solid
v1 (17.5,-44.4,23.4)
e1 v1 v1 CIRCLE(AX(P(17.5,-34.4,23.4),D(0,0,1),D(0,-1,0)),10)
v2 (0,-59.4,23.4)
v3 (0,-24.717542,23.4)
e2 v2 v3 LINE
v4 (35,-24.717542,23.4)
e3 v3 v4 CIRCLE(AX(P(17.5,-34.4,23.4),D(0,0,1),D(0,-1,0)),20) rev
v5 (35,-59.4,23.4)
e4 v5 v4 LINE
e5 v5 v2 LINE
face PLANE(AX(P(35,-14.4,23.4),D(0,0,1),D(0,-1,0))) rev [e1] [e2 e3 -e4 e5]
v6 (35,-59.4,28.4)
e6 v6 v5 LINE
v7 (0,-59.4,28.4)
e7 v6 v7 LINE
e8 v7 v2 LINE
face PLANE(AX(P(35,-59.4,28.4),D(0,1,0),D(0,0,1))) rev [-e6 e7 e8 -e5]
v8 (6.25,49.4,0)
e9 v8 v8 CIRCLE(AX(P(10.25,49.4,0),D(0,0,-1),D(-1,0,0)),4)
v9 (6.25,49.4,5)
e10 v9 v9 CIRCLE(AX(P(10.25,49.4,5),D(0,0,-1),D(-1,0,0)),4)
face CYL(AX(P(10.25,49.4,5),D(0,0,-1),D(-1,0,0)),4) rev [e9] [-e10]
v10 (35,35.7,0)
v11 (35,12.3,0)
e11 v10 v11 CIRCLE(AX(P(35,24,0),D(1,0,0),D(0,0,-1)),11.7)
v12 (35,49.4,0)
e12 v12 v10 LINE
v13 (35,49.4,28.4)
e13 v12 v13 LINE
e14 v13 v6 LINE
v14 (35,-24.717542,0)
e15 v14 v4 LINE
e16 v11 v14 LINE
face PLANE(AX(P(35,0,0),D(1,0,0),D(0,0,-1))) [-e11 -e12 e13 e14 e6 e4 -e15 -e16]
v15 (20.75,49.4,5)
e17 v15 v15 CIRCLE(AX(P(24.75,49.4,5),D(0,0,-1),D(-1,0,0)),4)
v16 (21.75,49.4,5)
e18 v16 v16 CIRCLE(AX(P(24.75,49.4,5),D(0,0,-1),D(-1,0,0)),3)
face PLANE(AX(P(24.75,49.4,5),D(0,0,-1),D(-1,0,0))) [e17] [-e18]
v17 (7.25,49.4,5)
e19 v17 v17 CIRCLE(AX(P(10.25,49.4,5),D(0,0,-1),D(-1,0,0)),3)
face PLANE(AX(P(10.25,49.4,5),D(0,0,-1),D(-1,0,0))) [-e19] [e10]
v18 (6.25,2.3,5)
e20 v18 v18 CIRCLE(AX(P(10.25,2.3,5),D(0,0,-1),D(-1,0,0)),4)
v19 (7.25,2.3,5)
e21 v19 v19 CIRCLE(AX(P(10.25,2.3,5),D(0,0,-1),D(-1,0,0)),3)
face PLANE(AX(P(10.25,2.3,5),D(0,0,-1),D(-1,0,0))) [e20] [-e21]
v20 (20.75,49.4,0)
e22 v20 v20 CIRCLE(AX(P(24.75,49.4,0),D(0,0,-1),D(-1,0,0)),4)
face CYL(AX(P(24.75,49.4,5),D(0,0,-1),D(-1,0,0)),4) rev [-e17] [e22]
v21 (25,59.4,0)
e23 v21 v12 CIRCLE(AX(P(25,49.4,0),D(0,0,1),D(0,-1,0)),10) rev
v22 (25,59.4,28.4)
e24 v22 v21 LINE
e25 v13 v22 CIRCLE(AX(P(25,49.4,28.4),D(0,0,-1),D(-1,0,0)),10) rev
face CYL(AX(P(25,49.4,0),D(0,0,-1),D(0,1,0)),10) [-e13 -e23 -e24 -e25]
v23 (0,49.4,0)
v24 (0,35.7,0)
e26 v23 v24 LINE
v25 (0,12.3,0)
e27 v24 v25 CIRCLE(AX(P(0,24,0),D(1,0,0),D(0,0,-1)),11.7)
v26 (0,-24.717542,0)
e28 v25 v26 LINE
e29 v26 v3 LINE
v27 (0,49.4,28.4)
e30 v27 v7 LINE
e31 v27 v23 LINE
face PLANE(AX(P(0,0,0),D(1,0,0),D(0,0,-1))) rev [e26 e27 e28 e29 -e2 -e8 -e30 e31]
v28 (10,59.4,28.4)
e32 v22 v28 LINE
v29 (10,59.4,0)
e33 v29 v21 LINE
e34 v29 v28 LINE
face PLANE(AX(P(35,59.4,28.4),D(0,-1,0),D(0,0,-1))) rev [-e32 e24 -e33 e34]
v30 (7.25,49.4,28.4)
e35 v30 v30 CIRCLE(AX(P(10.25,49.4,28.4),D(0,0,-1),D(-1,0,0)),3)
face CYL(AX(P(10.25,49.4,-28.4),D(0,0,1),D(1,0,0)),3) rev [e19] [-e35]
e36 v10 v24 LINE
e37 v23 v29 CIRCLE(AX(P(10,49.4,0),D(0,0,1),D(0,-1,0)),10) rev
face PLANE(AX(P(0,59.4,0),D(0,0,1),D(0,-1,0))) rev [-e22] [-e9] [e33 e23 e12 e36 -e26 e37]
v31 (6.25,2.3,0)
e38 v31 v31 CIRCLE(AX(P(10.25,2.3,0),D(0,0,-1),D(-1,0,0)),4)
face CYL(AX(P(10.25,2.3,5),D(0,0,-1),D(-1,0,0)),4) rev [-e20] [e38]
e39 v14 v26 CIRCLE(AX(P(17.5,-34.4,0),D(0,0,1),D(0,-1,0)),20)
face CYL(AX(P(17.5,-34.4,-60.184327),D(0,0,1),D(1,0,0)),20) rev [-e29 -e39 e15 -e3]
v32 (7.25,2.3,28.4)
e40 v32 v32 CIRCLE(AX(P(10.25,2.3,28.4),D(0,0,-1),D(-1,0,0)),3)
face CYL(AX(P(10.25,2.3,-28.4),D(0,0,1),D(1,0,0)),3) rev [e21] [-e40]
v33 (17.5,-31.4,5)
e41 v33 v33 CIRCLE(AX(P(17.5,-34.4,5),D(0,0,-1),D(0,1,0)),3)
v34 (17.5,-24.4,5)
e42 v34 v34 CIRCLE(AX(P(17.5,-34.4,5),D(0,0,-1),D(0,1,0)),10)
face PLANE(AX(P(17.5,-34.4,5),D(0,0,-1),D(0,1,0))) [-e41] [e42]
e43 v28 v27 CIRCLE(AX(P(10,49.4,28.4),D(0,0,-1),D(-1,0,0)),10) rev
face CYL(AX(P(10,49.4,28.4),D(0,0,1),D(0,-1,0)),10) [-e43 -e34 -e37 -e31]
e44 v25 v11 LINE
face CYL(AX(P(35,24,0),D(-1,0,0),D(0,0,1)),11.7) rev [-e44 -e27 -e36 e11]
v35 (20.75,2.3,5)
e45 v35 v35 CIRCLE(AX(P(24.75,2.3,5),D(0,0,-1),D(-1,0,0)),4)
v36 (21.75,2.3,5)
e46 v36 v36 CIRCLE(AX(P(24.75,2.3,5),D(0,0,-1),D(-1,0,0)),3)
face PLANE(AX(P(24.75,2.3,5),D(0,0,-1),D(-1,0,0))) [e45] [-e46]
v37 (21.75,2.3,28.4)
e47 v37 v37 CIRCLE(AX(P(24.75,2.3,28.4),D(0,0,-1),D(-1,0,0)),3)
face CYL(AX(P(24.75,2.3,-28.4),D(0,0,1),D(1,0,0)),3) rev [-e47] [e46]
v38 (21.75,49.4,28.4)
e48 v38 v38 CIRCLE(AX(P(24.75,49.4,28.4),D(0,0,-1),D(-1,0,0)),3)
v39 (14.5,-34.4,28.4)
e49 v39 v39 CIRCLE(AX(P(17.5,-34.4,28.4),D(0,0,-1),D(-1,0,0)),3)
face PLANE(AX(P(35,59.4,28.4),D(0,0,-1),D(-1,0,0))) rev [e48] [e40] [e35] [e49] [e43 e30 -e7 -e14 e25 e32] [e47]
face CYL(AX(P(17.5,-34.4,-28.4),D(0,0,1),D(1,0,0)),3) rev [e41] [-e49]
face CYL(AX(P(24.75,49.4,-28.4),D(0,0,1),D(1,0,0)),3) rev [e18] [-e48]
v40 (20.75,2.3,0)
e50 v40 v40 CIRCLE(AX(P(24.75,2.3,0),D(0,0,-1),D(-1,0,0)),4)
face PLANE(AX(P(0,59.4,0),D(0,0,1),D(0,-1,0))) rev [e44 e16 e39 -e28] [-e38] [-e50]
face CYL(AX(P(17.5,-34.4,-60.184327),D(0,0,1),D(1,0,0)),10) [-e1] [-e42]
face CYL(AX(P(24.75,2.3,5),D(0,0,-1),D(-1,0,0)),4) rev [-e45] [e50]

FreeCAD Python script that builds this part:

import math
import FreeCAD as App
import Part
import Sketcher
from FreeCAD import Vector
Q = App.Units.Quantity


def edges_at(feature, points):
    """Names of the edges that pass closest to the given points."""
    edges = feature.Shape.Edges
    near = lambda p: min(range(len(edges)), key=lambda i: edges[i].distToShape(Part.Vertex(*p))[0])
    return sorted({f"Edge{near(p) + 1}" for p in points})


def add_polygon(sketch, points):
    """Adds a closed chain of lines whose ends are joined by coincident constraints."""
    first, n = sketch.GeometryCount, len(points)
    for a, b in zip(points, points[1:] + points[:1]):
        sketch.addGeometry(Part.LineSegment(App.Vector(*a, 0), App.Vector(*b, 0)), False)
    for i in range(n):
        sketch.addConstraint(Sketcher.Constraint("Coincident", first + i, 2, first + (i + 1) % n, 1))

doc = App.newDocument("Part")
body = doc.addObject("PartDesign::Body", "Body")

# Sketch on YZ plane
sketch1 = body.newObject("Sketcher::SketchObject", "Sketch")
sketch1.AttachmentSupport = (doc.getObject("YZ_Plane"), [""])
sketch1.MapMode = "FlatFace"
add_polygon(sketch1, [(-59, 28), (-59, 23), (-14, 23), (-14, -23), (-59, -23), (-59, -28), (59, -28), (59, 28)])  # lines 0-7
sketch1.addGeometry(Part.Circle(Vector(24, 0, 0), Vector(0, 0, 1), 12), False)  # 8
sketch1.addConstraint(Sketcher.Constraint("Vertical", 0))
sketch1.addConstraint(Sketcher.Constraint("Horizontal", 1))
sketch1.addConstraint(Sketcher.Constraint("Vertical", 2))
sketch1.addConstraint(Sketcher.Constraint("Horizontal", 3))
sketch1.addConstraint(Sketcher.Constraint("Vertical", 4))
sketch1.addConstraint(Sketcher.Constraint("Horizontal", 5))
sketch1.addConstraint(Sketcher.Constraint("Vertical", 6))
sketch1.addConstraint(Sketcher.Constraint("Horizontal", 7))
sketch1.addConstraint(Sketcher.Constraint("Symmetric", 4, 2, 6, 2, -1, 1))
sketch1.addConstraint(Sketcher.Constraint("Symmetric", 0, 2, 3, 2, -1))
sketch1.addConstraint(Sketcher.Constraint("PointOnObject", 8, 3, -1))
sketch1.addConstraint(Sketcher.Constraint("Diameter", 8, Q("23.4 mm")))
sketch1.addConstraint(Sketcher.Constraint("DistanceX", 1, 1, 1, 2, Q("45 mm")))
sketch1.addConstraint(Sketcher.Constraint("DistanceY", 0, 2, 0, 1, Q("5 mm")))
sketch1.addConstraint(Sketcher.Constraint("DistanceX", 5, 1, 5, 2, Q("118.8 mm")))
sketch1.addConstraint(Sketcher.Constraint("DistanceY", 2, 2, 2, 1, Q("46.8 mm")))
sketch1.addConstraint(Sketcher.Constraint("DistanceX", -1, 1, 8, 3, Q("24 mm")))
pad1 = body.newObject("PartDesign::Pad", "Pad")
pad1.Profile = sketch1
pad1.Length = 35

# Sketch on XY plane
sketch2 = body.newObject("Sketcher::SketchObject", "Sketch001")
sketch2.AttachmentSupport = (doc.getObject("XY_Plane"), [""])
sketch2.MapMode = "FlatFace"
sketch2.AttachmentOffset = App.Placement(Vector(0, 0, 28.4), App.Rotation())
sketch2.addGeometry(Part.Circle(Vector(18, -34, 0), Vector(0, 0, 1), 10), False)
sketch2.addGeometry(Part.LineSegment(Vector(0, -13, 0), Vector(0, -25, 0)), False)
sketch2.addGeometry(Part.ArcOfCircle(Part.Circle(Vector(18, -34, 0), Vector(0, 0, 1), 20), math.radians(29), math.radians(151)), False)
sketch2.addGeometry(Part.LineSegment(Vector(35, -25, 0), Vector(35, -13, 0)), False)
sketch2.addGeometry(Part.LineSegment(Vector(35, -13, 0), Vector(0, -13, 0)), False)
sketch2.addConstraint(Sketcher.Constraint("Coincident", 1, 2, 2, 2))
sketch2.addConstraint(Sketcher.Constraint("Coincident", 2, 1, 3, 1))
sketch2.addConstraint(Sketcher.Constraint("Coincident", 3, 2, 4, 1))
sketch2.addConstraint(Sketcher.Constraint("Coincident", 4, 2, 1, 1))
sketch2.addConstraint(Sketcher.Constraint("Vertical", 1))
sketch2.addConstraint(Sketcher.Constraint("Vertical", 3))
sketch2.addConstraint(Sketcher.Constraint("Horizontal", 4))
sketch2.addConstraint(Sketcher.Constraint("Coincident", 2, 3, 0, 3))
sketch2.addConstraint(Sketcher.Constraint("PointOnObject", 1, 2, -2))
sketch2.addConstraint(Sketcher.Constraint("Horizontal", 1, 2, 2, 1))
sketch2.addConstraint(Sketcher.Constraint("Diameter", 0, Q("20 mm")))
sketch2.addConstraint(Sketcher.Constraint("Radius", 2, Q("20 mm")))
sketch2.addConstraint(Sketcher.Constraint("DistanceX", 4, 2, 4, 1, Q("35 mm")))
sketch2.addConstraint(Sketcher.Constraint("DistanceY", 0, 3, 3, 2, Q("21 mm")))
sketch2.addConstraint(Sketcher.Constraint("DistanceY", 0, 3, -1, 1, Q("34.4 mm")))
pad2 = body.newObject("PartDesign::Pad", "Pad001")
pad2.Profile = sketch2
pad2.Length = 51.8
pad2.Reversed = True

# Sketch on XY plane
sketch3 = body.newObject("Sketcher::SketchObject", "Sketch002")
sketch3.AttachmentSupport = (doc.getObject("XY_Plane"), [""])
sketch3.MapMode = "FlatFace"
sketch3.AttachmentOffset = App.Placement(Vector(0, 0, 28.4), App.Rotation())
sketch3.addGeometry(Part.Circle(Vector(10.2, 49.4, 0), Vector(0, 0, 1), 3), False)
sketch3.addGeometry(Part.Circle(Vector(17.5, -34.4, 0), Vector(0, 0, 1), 3), False)
sketch3.addGeometry(Part.Circle(Vector(10.2, 2.3, 0), Vector(0, 0, 1), 3), False)
sketch3.addGeometry(Part.Circle(Vector(24.8, 2.3, 0), Vector(0, 0, 1), 3), False)
sketch3.addGeometry(Part.Circle(Vector(24.8, 49.4, 0), Vector(0, 0, 1), 3), False)
sketch3.addConstraint(Sketcher.Constraint("Equal", 0, 1))
sketch3.addConstraint(Sketcher.Constraint("Equal", 1, 2))
sketch3.addConstraint(Sketcher.Constraint("Equal", 2, 3))
sketch3.addConstraint(Sketcher.Constraint("Equal", 3, 4))
sketch3.addConstraint(Sketcher.Constraint("Horizontal", 2, 3, 3, 3))
sketch3.addConstraint(Sketcher.Constraint("Horizontal", 0, 3, 4, 3))
sketch3.addConstraint(Sketcher.Constraint("Vertical", 0, 3, 2, 3))
sketch3.addConstraint(Sketcher.Constraint("Vertical", 3, 3, 4, 3))
sketch3.addConstraint(Sketcher.Constraint("Diameter", 0, Q("6 mm")))
sketch3.addConstraint(Sketcher.Constraint("DistanceY", -1, 1, 0, 3, Q("49.4 mm")))
sketch3.addConstraint(Sketcher.Constraint("DistanceX", -1, 1, 1, 3, Q("17.5 mm")))
sketch3.addConstraint(Sketcher.Constraint("DistanceY", 1, 3, -1, 1, Q("34.4 mm")))
sketch3.addConstraint(Sketcher.Constraint("DistanceY", -1, 1, 2, 3, Q("2.3 mm")))
sketch3.addConstraint(Sketcher.Constraint("DistanceX", 2, 3, 3, 3, Q("14.5 mm")))
sketch3.addConstraint(Sketcher.Constraint("DistanceX", -1, 1, 0, 3, Q("10.25 mm")))
pocket1 = body.newObject("PartDesign::Pocket", "Pocket")
pocket1.Profile = sketch3
pocket1.Type = "ThroughAll"
pocket1.Midplane = True

# Sketch on YZ plane
sketch4 = body.newObject("Sketcher::SketchObject", "Sketch003")
sketch4.AttachmentSupport = (doc.getObject("YZ_Plane"), [""])
sketch4.MapMode = "FlatFace"
sketch4.AttachmentOffset = App.Placement(Vector(0, 0, 35), App.Rotation())
add_polygon(sketch4, [(59, 0), (-59, 0), (-59, -28), (59, -28)])  # lines 0-3
sketch4.addConstraint(Sketcher.Constraint("Horizontal", 0))
sketch4.addConstraint(Sketcher.Constraint("Vertical", 1))
sketch4.addConstraint(Sketcher.Constraint("Horizontal", 2))
sketch4.addConstraint(Sketcher.Constraint("Vertical", 3))
sketch4.addConstraint(Sketcher.Constraint("Symmetric", 0, 2, 3, 2, -1, 1))
sketch4.addConstraint(Sketcher.Constraint("DistanceX", 0, 2, 0, 1, Q("118.8 mm")))
sketch4.addConstraint(Sketcher.Constraint("DistanceY", 1, 2, 1, 1, Q("28.4 mm")))
pocket2 = body.newObject("PartDesign::Pocket", "Pocket001")
pocket2.Profile = sketch4
pocket2.Type = "ThroughAll"

# Sketch on XY plane
sketch5 = body.newObject("Sketcher::SketchObject", "Sketch004")
sketch5.AttachmentSupport = (doc.getObject("XY_Plane"), [""])
sketch5.MapMode = "FlatFace"
sketch5.addGeometry(Part.Circle(Vector(17.5, -34.4, 0), Vector(0, 0, 1), 10), False)
sketch5.addGeometry(Part.Circle(Vector(17.5, -34.4, 0), Vector(0, 0, 1), 3), False)
sketch5.addConstraint(Sketcher.Constraint("Coincident", 1, 3, 0, 3))
sketch5.addConstraint(Sketcher.Constraint("Diameter", 0, Q("20 mm")))
sketch5.addConstraint(Sketcher.Constraint("Diameter", 1, Q("6 mm")))
sketch5.addConstraint(Sketcher.Constraint("DistanceX", -1, 1, 0, 3, Q("17.5 mm")))
sketch5.addConstraint(Sketcher.Constraint("DistanceY", 0, 3, -1, 1, Q("34.4 mm")))
pocket3 = body.newObject("PartDesign::Pocket", "Pocket002")
pocket3.Profile = sketch5
pocket3.Length = 5
pocket3.Reversed = True

# Sketch on XY plane
sketch6 = body.newObject("Sketcher::SketchObject", "Sketch005")
sketch6.AttachmentSupport = (doc.getObject("XY_Plane"), [""])
sketch6.MapMode = "FlatFace"
sketch6.addGeometry(Part.Circle(Vector(24.8, 49.4, 0), Vector(0, 0, 1), 4), False)
sketch6.addGeometry(Part.Circle(Vector(24.8, 49.4, 0), Vector(0, 0, 1), 3), False)
sketch6.addGeometry(Part.Circle(Vector(10.2, 49.4, 0), Vector(0, 0, 1), 4), False)
sketch6.addGeometry(Part.Circle(Vector(10.2, 49.4, 0), Vector(0, 0, 1), 3), False)
sketch6.addGeometry(Part.Circle(Vector(24.8, 2.3, 0), Vector(0, 0, 1), 4), False)
sketch6.addGeometry(Part.Circle(Vector(24.8, 2.3, 0), Vector(0, 0, 1), 3), False)
sketch6.addGeometry(Part.Circle(Vector(10.2, 2.3, 0), Vector(0, 0, 1), 4), False)
sketch6.addGeometry(Part.Circle(Vector(10.2, 2.3, 0), Vector(0, 0, 1), 3), False)
sketch6.addConstraint(Sketcher.Constraint("Coincident", 1, 3, 0, 3))
sketch6.addConstraint(Sketcher.Constraint("Coincident", 3, 3, 2, 3))
sketch6.addConstraint(Sketcher.Constraint("Coincident", 5, 3, 4, 3))
sketch6.addConstraint(Sketcher.Constraint("Coincident", 7, 3, 6, 3))
sketch6.addConstraint(Sketcher.Constraint("Equal", 0, 2))
sketch6.addConstraint(Sketcher.Constraint("Equal", 1, 3))
sketch6.addConstraint(Sketcher.Constraint("Equal", 2, 4))
sketch6.addConstraint(Sketcher.Constraint("Equal", 3, 5))
sketch6.addConstraint(Sketcher.Constraint("Equal", 4, 6))
sketch6.addConstraint(Sketcher.Constraint("Equal", 5, 7))
sketch6.addConstraint(Sketcher.Constraint("Horizontal", 1, 3, 2, 3))
sketch6.addConstraint(Sketcher.Constraint("Horizontal", 5, 3, 6, 3))
sketch6.addConstraint(Sketcher.Constraint("Vertical", 1, 3, 4, 3))
sketch6.addConstraint(Sketcher.Constraint("Vertical", 3, 3, 6, 3))
sketch6.addConstraint(Sketcher.Constraint("Diameter", 0, Q("8 mm")))
sketch6.addConstraint(Sketcher.Constraint("Diameter", 1, Q("6 mm")))
sketch6.addConstraint(Sketcher.Constraint("DistanceY", -1, 1, 0, 3, Q("49.4 mm")))
sketch6.addConstraint(Sketcher.Constraint("DistanceY", -1, 1, 4, 3, Q("2.3 mm")))
sketch6.addConstraint(Sketcher.Constraint("DistanceX", 2, 3, 0, 3, Q("14.5 mm")))
sketch6.addConstraint(Sketcher.Constraint("DistanceX", -1, 1, 0, 3, Q("24.75 mm")))
pocket4 = body.newObject("PartDesign::Pocket", "Pocket003")
pocket4.Profile = sketch6
pocket4.Length = 5
pocket4.Reversed = True
doc.recompute()

fillet = body.newObject("PartDesign::Fillet", "Fillet")
fillet.Base = (pocket4, edges_at(pocket4, [(0, 59.4, 14.2), (35, 59.4, 14.2)]))
fillet.Radius = 10

doc.recompute()
